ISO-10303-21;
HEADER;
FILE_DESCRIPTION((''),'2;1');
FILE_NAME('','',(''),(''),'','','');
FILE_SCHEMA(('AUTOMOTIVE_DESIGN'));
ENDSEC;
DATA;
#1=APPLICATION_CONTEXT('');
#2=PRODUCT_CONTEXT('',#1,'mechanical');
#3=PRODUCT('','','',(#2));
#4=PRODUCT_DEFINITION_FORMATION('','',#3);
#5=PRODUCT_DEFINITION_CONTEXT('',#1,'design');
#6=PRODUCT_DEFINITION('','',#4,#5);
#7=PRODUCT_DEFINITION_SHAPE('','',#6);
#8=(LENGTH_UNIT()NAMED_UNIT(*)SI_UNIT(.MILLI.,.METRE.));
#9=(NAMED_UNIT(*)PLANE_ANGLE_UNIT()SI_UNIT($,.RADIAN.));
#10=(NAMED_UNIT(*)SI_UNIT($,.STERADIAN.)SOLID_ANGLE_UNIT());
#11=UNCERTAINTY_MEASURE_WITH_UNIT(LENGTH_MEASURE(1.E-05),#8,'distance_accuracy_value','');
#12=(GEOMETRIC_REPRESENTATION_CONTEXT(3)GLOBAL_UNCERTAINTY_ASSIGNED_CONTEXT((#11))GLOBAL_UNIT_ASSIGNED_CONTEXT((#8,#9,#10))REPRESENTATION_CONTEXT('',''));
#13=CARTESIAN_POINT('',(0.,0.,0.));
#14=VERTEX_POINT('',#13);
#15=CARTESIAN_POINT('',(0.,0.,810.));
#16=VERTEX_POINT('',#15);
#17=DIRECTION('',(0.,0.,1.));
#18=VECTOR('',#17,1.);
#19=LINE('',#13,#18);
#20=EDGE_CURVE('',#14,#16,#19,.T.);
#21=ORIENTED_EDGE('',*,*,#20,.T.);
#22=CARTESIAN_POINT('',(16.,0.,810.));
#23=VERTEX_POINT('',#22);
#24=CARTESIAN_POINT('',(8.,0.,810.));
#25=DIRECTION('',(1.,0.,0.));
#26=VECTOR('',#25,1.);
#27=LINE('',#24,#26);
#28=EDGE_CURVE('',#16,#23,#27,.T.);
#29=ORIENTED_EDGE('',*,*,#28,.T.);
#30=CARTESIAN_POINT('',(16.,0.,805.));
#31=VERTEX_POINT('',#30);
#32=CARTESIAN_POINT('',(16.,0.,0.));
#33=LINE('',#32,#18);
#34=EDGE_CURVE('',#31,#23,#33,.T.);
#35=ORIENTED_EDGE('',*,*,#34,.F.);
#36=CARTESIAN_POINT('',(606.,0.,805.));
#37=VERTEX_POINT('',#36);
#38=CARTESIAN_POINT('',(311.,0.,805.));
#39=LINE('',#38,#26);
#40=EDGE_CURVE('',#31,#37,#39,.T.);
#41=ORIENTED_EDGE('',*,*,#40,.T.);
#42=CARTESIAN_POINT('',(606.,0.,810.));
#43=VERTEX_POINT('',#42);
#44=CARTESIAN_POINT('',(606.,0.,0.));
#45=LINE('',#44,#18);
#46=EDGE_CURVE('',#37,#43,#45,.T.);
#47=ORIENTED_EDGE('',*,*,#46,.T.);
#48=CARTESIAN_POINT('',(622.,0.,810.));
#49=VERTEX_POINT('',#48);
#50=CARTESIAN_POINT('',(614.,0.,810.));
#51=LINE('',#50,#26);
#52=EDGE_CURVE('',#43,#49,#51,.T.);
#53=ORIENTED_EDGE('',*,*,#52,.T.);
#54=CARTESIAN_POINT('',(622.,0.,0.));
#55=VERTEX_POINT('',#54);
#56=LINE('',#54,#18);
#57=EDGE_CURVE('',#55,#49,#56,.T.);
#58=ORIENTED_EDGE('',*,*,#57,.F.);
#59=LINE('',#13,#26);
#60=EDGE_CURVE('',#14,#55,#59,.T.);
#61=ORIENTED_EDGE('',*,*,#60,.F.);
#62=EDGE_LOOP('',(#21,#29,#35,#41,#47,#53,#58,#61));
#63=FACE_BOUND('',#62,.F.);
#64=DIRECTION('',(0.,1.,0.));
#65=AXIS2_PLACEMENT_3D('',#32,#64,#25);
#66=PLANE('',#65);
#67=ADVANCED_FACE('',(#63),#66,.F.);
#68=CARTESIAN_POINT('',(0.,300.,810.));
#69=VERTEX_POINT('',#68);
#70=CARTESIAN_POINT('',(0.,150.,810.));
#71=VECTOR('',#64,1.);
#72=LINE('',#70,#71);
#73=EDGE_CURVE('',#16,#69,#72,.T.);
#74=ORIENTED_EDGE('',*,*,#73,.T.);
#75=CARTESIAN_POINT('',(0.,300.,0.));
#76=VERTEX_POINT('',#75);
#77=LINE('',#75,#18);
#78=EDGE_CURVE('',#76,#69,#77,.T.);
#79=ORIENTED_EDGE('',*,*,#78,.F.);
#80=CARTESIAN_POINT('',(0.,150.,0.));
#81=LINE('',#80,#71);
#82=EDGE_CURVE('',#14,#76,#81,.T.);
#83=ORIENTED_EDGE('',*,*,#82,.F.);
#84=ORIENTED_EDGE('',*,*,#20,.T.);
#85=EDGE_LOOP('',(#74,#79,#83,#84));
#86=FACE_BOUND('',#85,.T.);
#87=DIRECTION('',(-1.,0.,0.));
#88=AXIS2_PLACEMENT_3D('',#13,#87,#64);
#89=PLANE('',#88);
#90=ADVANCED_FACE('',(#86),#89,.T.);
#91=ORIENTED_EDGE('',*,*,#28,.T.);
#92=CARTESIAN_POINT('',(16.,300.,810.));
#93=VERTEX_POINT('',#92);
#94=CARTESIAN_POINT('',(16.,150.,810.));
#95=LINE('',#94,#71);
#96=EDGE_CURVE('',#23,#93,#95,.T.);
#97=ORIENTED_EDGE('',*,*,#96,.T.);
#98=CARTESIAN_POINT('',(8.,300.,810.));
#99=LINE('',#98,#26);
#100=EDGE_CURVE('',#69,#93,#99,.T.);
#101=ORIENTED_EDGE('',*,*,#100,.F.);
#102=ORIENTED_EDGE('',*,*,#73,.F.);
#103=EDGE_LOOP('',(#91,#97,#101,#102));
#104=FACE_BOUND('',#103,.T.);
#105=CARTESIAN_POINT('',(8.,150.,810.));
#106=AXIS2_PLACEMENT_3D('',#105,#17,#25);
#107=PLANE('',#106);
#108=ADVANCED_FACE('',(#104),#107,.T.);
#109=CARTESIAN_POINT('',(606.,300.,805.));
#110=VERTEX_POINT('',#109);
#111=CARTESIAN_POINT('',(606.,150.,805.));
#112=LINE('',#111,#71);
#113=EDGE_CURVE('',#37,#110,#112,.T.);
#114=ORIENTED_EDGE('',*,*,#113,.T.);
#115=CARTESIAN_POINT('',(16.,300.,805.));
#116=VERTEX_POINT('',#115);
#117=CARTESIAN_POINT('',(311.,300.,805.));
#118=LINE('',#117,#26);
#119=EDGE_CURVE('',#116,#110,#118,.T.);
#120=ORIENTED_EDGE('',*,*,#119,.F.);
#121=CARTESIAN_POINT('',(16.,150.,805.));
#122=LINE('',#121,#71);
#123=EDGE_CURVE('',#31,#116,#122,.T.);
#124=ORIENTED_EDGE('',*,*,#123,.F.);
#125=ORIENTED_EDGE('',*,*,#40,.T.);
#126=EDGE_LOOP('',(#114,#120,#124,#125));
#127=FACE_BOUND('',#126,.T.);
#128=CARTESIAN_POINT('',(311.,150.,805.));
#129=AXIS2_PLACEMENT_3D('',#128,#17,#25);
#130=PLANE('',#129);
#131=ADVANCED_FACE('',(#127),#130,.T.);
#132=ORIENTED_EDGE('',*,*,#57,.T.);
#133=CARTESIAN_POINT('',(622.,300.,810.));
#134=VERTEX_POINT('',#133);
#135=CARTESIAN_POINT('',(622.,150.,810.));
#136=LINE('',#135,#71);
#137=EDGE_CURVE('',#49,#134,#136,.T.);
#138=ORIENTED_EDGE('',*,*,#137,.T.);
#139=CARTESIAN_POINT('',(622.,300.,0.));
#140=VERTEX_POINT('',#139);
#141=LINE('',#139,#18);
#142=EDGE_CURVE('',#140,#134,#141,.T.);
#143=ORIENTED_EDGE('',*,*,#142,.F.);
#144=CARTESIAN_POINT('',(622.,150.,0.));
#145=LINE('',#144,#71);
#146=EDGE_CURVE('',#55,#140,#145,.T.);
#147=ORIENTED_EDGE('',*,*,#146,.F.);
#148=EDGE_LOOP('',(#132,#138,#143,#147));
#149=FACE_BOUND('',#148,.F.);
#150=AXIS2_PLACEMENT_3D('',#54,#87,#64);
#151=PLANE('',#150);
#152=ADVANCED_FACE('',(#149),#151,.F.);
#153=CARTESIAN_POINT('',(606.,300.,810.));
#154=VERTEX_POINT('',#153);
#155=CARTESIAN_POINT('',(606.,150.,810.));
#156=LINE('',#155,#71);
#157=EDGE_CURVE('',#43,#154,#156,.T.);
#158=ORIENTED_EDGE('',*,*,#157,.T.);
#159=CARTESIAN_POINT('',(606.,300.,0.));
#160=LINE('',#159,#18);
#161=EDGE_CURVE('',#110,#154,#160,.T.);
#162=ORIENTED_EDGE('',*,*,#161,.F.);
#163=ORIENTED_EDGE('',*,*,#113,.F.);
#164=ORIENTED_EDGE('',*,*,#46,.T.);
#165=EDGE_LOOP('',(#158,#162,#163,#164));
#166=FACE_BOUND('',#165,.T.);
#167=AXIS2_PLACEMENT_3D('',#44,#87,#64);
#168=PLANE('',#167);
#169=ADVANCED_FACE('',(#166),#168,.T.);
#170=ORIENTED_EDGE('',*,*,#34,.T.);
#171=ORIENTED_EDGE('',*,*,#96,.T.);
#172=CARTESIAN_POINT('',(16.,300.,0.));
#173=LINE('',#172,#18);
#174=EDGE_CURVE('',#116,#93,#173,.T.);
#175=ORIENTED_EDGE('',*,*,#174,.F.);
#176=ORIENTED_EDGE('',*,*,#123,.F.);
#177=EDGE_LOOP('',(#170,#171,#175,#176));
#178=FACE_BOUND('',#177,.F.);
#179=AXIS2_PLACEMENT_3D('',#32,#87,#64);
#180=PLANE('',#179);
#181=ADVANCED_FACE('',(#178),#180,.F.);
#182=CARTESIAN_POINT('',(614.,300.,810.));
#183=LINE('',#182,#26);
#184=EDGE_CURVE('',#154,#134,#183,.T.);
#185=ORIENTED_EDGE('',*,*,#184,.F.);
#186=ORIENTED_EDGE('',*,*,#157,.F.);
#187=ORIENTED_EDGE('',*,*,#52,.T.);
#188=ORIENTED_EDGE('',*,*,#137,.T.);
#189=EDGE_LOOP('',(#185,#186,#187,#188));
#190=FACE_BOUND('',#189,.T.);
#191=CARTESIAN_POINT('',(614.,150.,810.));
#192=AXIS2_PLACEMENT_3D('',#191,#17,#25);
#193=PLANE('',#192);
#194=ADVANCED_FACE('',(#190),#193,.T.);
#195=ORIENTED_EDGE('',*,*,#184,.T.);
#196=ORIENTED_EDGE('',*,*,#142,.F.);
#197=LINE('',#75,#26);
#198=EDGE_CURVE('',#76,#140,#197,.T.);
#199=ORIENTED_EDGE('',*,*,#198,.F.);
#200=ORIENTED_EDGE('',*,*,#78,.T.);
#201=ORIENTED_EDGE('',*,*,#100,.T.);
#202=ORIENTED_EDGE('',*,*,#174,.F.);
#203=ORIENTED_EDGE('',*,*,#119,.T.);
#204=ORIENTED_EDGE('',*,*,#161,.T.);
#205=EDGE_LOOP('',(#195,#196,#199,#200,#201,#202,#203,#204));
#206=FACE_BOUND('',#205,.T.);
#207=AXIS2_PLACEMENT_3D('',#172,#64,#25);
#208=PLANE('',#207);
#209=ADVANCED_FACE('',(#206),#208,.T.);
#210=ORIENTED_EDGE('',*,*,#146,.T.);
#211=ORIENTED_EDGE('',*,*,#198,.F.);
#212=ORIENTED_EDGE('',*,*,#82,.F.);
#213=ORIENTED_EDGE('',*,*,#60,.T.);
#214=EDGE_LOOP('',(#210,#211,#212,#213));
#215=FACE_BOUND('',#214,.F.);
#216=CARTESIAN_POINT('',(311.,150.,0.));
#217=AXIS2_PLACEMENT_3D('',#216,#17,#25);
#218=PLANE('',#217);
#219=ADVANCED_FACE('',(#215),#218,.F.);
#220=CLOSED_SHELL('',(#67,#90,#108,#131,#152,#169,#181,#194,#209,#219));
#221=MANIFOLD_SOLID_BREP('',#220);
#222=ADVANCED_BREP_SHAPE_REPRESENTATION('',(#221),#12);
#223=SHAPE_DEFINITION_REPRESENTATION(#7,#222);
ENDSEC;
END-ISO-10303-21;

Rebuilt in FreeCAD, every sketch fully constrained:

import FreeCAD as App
import Part
import Sketcher

V = App.Vector


def add_polygon(sketch, points):
    """Adds a closed chain of lines whose ends are joined by coincident constraints."""
    first, n = sketch.GeometryCount, len(points)
    for a, b in zip(points, points[1:] + points[:1]):
        sketch.addGeometry(Part.LineSegment(App.Vector(*a, 0), App.Vector(*b, 0)), False)
    for i in range(n):
        sketch.addConstraint(Sketcher.Constraint("Coincident", first + i, 2, first + (i + 1) % n, 1))

doc = App.newDocument("Part")
body = doc.addObject("PartDesign::Body", "Body")

sketch1 = body.newObject("Sketcher::SketchObject", "Sketch")
sketch1.AttachmentSupport = (doc.getObject("XY_Plane"), [""])
sketch1.MapMode = "FlatFace"
add_polygon(sketch1, [(606, 300), (606, 0), (622, 0), (622, 300)])
sketch1.addConstraint([
    Sketcher.Constraint("Vertical", 0),
    Sketcher.Constraint("Horizontal", 1),
    Sketcher.Constraint("Vertical", 2),
    Sketcher.Constraint("Horizontal", 3),
    Sketcher.Constraint("PointOnObject", 0, 2, -1),
    Sketcher.Constraint("DistanceX", 1, 1, 1, 2, 16.0),
    Sketcher.Constraint("DistanceY", 0, 2, 0, 1, 300.0),
    Sketcher.Constraint("DistanceX", -1, 1, 0, 2, 606.0),
])
pad1 = body.newObject("PartDesign::Pad", "Pad")
pad1.Profile = sketch1
pad1.Length = 810
body2 = doc.addObject("PartDesign::Body", "Body001")

sketch2 = body2.newObject("Sketcher::SketchObject", "Sketch001")
sketch2.AttachmentSupport = (doc.getObject("XY_Plane001"), [""])
sketch2.MapMode = "FlatFace"
sketch2.AttachmentOffset = App.Placement(V(0, 0, 789), App.Rotation())
add_polygon(sketch2, [(16, 300), (16, 0), (606, 0), (606, 300)])
sketch2.addConstraint([
    Sketcher.Constraint("Vertical", 0),
    Sketcher.Constraint("Horizontal", 1),
    Sketcher.Constraint("Vertical", 2),
    Sketcher.Constraint("Horizontal", 3),
    Sketcher.Constraint("PointOnObject", 0, 2, -1),
    Sketcher.Constraint("DistanceX", 1, 1, 1, 2, 590.0),
    Sketcher.Constraint("DistanceY", 0, 2, 0, 1, 300.0),
    Sketcher.Constraint("DistanceX", -1, 1, 0, 2, 16.0),
])
pad2 = body2.newObject("PartDesign::Pad", "Pad001")
pad2.Profile = sketch2
pad2.Length = 16
body3 = doc.addObject("PartDesign::Body", "Body002")

sketch3 = body3.newObject("Sketcher::SketchObject", "Sketch002")
sketch3.AttachmentSupport = (doc.getObject("XY_Plane002"), [""])
sketch3.MapMode = "FlatFace"
add_polygon(sketch3, [(16, 300), (16, 0), (606, 0), (606, 300)])
sketch3.addConstraint([
    Sketcher.Constraint("Vertical", 0),
    Sketcher.Constraint("Horizontal", 1),
    Sketcher.Constraint("Vertical", 2),
    Sketcher.Constraint("Horizontal", 3),
    Sketcher.Constraint("PointOnObject", 0, 2, -1),
    Sketcher.Constraint("DistanceX", 1, 1, 1, 2, 590.0),
    Sketcher.Constraint("DistanceY", 0, 2, 0, 1, 300.0),
    Sketcher.Constraint("DistanceX", -1, 1, 0, 2, 16.0),
])
pad3 = body3.newObject("PartDesign::Pad", "Pad002")
pad3.Profile = sketch3
pad3.Length = 789
body4 = doc.addObject("PartDesign::Body", "Body003")
body4.AllowCompound = True

sketch4 = body4.newObject("Sketcher::SketchObject", "Sketch003")
sketch4.AttachmentSupport = (doc.getObject("XY_Plane003"), [""])
sketch4.MapMode = "FlatFace"
add_polygon(sketch4, [(0, 300), (0, 0), (16, 0), (16, 300)])
sketch4.addConstraint([
    Sketcher.Constraint("Vertical", 0),
    Sketcher.Constraint("Horizontal", 1),
    Sketcher.Constraint("Vertical", 2),
    Sketcher.Constraint("Horizontal", 3),
    Sketcher.Constraint("Coincident", 0, 2, -1, 1),
    Sketcher.Constraint("DistanceX", 1, 1, 1, 2, 16.0),
    Sketcher.Constraint("DistanceY", 0, 2, 0, 1, 300.0),
])
pad4 = body4.newObject("PartDesign::Pad", "Pad003")
pad4.Profile = sketch4
pad4.Length = 810
doc.recompute()

boolean = body4.newObject("PartDesign::Boolean", "Boolean")
boolean.Type = "Fuse"
boolean.addObjects([body])
doc.recompute()

boolean2 = body4.newObject("PartDesign::Boolean", "Boolean001")
boolean2.Type = "Fuse"
boolean2.addObjects([body2])
doc.recompute()

boolean3 = body4.newObject("PartDesign::Boolean", "Boolean002")
boolean3.Type = "Fuse"
boolean3.addObjects([body3])

doc.recompute()
